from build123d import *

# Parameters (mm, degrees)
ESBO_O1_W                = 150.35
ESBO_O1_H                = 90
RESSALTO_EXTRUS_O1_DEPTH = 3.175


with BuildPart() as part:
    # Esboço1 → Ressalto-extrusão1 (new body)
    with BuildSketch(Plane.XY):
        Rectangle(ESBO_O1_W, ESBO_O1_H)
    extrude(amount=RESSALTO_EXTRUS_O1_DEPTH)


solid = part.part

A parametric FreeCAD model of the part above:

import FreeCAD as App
import Part
import Sketcher
Q = App.Units.Quantity


def add_polygon(sketch, points):
    """Adds a closed chain of lines whose ends are joined by coincident constraints."""
    first, n = sketch.GeometryCount, len(points)
    for a, b in zip(points, points[1:] + points[:1]):
        sketch.addGeometry(Part.LineSegment(App.Vector(*a, 0), App.Vector(*b, 0)), False)
    for i in range(n):
        sketch.addConstraint(Sketcher.Constraint("Coincident", first + i, 2, first + (i + 1) % n, 1))

doc = App.newDocument("Part")
params = doc.addObject("Spreadsheet::Sheet", "Params")
for row, (alias, value) in enumerate([
    ("sketch1_height", "90 mm"),
    ("sketch1_width", "150.35 mm"),
    ("pad1_length", "3.175 mm"),
], start=1):
    params.set(f"A{row}", alias)
    params.set(f"B{row}", "=" + value)
    params.setAlias(f"B{row}", alias)

body = doc.addObject("PartDesign::Body", "Body")

sketch1 = body.newObject("Sketcher::SketchObject", "Sketch")
sketch1.AttachmentSupport = (doc.getObject("XY_Plane"), [""])
sketch1.MapMode = "FlatFace"
add_polygon(sketch1, [(-75, 45), (-75, -45), (75, -45), (75, 45)])
sketch1.addConstraint(Sketcher.Constraint("Vertical", 0))
sketch1.addConstraint(Sketcher.Constraint("Horizontal", 1))
sketch1.addConstraint(Sketcher.Constraint("Vertical", 2))
sketch1.addConstraint(Sketcher.Constraint("Horizontal", 3))
sketch1.addConstraint(Sketcher.Constraint("Symmetric", 0, 2, 2, 2, -1, 1))
sketch1.addConstraint(Sketcher.Constraint("DistanceY", 0, 2, 0, 1, Q("90 mm")))
sketch1.addConstraint(Sketcher.Constraint("DistanceX", 1, 1, 1, 2, Q("150.35 mm")))
sketch1.setExpression("Constraints[9]", "Params.sketch1_height")
sketch1.setExpression("Constraints[10]", "Params.sketch1_width")
pad1 = body.newObject("PartDesign::Pad", "Pad")
pad1.Profile = sketch1
pad1.setExpression("Length", "Params.pad1_length")

doc.recompute()
